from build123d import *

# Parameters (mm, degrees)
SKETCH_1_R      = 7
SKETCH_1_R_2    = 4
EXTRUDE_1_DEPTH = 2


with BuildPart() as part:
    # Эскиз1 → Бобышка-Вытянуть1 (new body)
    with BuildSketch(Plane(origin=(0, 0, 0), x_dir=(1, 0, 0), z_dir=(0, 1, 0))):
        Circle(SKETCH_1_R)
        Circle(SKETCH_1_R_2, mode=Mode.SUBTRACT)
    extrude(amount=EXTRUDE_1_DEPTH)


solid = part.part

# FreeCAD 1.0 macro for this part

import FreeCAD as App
import Part
import Sketcher
from FreeCAD import Vector

doc = App.newDocument("Part")
body = doc.addObject("PartDesign::Body", "Body")

# Sketch on XZ plane
sketch1 = body.newObject("Sketcher::SketchObject", "Sketch")
sketch1.AttachmentSupport = (doc.getObject("XZ_Plane"), [""])
sketch1.MapMode = "FlatFace"
sketch1.addGeometry(Part.Circle(Vector(0, 0, 0), Vector(0, 0, 1), 7), False)
sketch1.addGeometry(Part.Circle(Vector(0, 0, 0), Vector(0, 0, 1), 4), False)
sketch1.addConstraint(Sketcher.Constraint("Coincident", 0, 3, -1, 1))
sketch1.addConstraint(Sketcher.Constraint("Coincident", 1, 3, -1, 1))
sketch1.addConstraint(Sketcher.Constraint("Diameter", 0, 14.0))
sketch1.addConstraint(Sketcher.Constraint("Diameter", 1, 8.0))
pad1 = body.newObject("PartDesign::Pad", "Pad")
pad1.Profile = sketch1
pad1.Length = 2
pad1.Reversed = True

doc.recompute()
